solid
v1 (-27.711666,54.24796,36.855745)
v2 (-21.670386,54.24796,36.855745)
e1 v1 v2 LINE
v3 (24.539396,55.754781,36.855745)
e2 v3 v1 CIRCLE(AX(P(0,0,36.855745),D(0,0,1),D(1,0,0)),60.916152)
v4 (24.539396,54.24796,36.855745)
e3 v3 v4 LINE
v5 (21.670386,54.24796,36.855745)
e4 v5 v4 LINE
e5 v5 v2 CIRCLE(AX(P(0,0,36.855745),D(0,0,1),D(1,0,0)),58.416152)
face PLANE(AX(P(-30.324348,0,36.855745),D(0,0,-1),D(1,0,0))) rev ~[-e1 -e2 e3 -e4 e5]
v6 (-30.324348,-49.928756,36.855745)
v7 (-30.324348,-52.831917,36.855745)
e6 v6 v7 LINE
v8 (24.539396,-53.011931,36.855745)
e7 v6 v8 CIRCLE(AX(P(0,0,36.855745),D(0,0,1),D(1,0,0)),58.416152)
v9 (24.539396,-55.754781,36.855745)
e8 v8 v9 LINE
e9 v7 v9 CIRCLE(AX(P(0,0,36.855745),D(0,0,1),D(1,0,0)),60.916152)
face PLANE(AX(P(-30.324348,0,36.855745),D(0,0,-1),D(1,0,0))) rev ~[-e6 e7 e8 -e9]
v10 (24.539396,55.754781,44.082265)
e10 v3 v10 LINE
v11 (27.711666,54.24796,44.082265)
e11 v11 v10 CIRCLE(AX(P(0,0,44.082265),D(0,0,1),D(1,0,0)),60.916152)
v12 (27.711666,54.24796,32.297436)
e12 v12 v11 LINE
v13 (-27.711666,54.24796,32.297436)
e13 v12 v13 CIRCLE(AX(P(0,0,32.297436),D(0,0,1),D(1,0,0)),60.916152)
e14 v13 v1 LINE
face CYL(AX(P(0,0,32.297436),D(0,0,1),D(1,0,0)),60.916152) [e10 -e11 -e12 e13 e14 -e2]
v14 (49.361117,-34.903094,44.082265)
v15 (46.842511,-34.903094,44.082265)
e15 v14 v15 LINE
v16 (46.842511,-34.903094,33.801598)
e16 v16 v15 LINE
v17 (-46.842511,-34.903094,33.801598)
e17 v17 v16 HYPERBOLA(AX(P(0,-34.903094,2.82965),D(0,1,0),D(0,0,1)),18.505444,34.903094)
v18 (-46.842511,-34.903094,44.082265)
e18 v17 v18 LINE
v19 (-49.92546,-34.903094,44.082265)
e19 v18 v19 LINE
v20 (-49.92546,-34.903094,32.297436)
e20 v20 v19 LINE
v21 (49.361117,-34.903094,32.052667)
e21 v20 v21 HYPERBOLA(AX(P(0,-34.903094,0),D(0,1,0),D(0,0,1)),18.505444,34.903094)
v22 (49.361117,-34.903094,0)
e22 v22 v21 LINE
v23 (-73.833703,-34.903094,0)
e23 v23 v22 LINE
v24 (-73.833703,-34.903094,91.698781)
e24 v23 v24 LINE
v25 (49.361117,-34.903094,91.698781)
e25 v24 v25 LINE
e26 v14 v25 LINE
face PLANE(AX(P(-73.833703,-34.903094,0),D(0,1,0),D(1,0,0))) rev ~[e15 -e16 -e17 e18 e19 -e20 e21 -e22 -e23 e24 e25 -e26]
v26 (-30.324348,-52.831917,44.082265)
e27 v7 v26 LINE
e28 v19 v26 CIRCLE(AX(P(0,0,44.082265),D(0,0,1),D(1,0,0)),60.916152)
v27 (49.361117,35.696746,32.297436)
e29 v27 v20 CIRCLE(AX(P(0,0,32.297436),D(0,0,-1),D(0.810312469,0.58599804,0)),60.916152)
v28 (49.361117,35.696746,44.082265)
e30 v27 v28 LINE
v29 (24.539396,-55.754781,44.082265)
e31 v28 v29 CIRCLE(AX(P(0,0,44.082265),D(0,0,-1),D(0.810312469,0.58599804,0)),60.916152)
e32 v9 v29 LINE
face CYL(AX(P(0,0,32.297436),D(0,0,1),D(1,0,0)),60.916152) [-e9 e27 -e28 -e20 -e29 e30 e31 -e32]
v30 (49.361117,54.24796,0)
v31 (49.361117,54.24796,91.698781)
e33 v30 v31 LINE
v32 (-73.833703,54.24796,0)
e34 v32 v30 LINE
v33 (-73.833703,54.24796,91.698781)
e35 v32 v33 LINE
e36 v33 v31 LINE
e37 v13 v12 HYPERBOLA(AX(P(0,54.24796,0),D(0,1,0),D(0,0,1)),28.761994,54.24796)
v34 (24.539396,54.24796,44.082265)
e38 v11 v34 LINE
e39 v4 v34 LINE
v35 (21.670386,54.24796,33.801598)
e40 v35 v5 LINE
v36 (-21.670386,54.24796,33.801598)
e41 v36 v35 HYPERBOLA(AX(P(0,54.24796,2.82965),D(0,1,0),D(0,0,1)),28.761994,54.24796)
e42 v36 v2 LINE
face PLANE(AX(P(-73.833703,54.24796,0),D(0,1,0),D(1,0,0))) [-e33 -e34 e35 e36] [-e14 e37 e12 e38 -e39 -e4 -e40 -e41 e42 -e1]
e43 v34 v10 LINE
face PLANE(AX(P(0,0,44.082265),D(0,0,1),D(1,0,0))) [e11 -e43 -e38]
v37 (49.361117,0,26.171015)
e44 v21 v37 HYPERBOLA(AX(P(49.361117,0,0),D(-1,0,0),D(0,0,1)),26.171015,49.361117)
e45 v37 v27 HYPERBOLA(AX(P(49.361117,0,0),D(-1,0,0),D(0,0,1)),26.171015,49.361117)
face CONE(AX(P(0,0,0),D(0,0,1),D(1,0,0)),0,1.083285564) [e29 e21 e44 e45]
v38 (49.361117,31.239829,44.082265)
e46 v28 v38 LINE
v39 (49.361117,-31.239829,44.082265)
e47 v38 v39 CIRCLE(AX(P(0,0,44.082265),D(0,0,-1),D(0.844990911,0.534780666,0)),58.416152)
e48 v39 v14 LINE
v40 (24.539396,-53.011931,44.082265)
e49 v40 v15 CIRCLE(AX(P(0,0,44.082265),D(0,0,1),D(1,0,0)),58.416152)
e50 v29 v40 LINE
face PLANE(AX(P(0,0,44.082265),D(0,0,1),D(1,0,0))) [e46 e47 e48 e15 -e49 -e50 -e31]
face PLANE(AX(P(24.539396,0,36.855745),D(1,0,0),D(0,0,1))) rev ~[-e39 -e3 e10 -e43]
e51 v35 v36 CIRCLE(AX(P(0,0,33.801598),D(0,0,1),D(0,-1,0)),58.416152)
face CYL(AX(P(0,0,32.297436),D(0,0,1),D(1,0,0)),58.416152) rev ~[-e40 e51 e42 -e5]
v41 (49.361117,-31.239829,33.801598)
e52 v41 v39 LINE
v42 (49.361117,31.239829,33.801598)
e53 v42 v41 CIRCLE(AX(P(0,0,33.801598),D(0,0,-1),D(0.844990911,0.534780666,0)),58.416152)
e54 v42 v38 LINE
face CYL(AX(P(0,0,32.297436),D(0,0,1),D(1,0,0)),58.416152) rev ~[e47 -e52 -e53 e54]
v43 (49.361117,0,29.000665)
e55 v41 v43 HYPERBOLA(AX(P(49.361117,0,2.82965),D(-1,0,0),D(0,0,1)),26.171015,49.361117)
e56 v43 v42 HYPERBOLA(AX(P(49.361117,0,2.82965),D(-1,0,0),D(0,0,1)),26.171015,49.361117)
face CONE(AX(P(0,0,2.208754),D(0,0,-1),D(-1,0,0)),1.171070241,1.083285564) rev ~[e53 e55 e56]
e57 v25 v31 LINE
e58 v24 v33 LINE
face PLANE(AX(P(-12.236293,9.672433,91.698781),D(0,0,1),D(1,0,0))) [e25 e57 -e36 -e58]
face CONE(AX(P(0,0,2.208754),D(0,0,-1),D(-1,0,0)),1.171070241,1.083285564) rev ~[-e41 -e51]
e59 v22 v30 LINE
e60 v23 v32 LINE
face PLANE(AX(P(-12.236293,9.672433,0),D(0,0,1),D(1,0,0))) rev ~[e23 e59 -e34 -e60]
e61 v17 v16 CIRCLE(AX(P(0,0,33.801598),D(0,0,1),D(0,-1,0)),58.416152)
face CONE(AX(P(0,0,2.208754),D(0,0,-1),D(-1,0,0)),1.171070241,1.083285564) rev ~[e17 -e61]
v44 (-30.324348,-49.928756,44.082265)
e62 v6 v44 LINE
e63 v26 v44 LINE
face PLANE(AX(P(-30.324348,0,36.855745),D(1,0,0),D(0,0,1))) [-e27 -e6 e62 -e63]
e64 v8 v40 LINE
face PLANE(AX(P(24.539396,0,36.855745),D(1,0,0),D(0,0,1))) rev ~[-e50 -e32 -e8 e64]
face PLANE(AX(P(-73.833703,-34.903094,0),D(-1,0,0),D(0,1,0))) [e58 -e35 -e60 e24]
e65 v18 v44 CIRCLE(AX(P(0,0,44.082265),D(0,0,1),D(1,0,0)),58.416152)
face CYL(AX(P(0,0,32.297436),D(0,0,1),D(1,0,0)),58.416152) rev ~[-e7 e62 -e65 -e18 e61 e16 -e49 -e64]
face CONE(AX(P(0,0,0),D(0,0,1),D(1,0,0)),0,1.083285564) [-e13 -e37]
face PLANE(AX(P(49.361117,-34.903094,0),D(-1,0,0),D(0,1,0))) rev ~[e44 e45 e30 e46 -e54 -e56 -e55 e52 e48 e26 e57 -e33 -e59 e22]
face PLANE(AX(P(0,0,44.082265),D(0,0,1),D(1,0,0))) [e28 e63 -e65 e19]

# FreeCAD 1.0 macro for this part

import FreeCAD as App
import Part
import Sketcher

V = App.Vector
Q = App.Units.Quantity


def faces_at(feature, points):
    """Names of the faces that lie closest to the given points."""
    faces = feature.Shape.Faces
    near = lambda p: min(range(len(faces)), key=lambda i: faces[i].distToShape(Part.Vertex(*p))[0])
    return sorted({f"Face{near(p) + 1}" for p in points})

doc = App.newDocument("Part")
body = doc.addObject("PartDesign::Body", "Body")

sketch1 = doc.addObject("Sketcher::SketchObject", "Sketch")
body.addObject(sketch1)
sketch1.AttachmentSupport = (doc.XZ_Plane, [""])
sketch1.MapMode = "FlatFace"
sketch1.addGeometry([
    Part.LineSegment(V(0, 44.082265, 0), V(0, 0, 0)),
    Part.LineSegment(V(0, 0, 0), V(60.916152, 32.297436, 0)),
    Part.LineSegment(V(60.916152, 32.297436, 0), V(60.916152, 44.082265, 0)),
    Part.LineSegment(V(60.916152, 44.082265, 0), V(0, 44.082265, 0)),
], False)
sketch1.addConstraint([
    Sketcher.Constraint("Coincident", 0, 2, 1, 1),
    Sketcher.Constraint("Coincident", 1, 2, 2, 1),
    Sketcher.Constraint("Coincident", 2, 2, 3, 1),
    Sketcher.Constraint("Coincident", 3, 2, 0, 1),
    Sketcher.Constraint("Vertical", 0),
    Sketcher.Constraint("Vertical", 2),
    Sketcher.Constraint("Horizontal", 3),
    Sketcher.Constraint("Coincident", 0, 2, -1, 1),
    Sketcher.Constraint("DistanceX", 3, 2, 3, 1, Q("60.916152 mm")),
    Sketcher.Constraint("DistanceY", 2, 1, 2, 2, Q("11.784829 mm")),
    Sketcher.Constraint("DistanceY", 0, 2, 0, 1, Q("44.082265 mm")),
])
revolution = doc.addObject("PartDesign::Revolution", "Revolution")
body.addObject(revolution)
revolution.Profile = sketch1
revolution.ReferenceAxis = (sketch1, ["V_Axis"])
revolution.Angle = 360
doc.recompute()

thickness = doc.addObject("PartDesign::Thickness", "Thickness")
body.addObject(thickness)
thickness.Base = (revolution, faces_at(revolution, [(0, 0, 44.082)]))
thickness.Value = 2.5
thickness.Reversed = True
thickness.Join = "Arc"

sketch2 = doc.addObject("Sketcher::SketchObject", "Sketch001")
body.addObject(sketch2)
sketch2.AttachmentSupport = (doc.XZ_Plane, [""])
sketch2.MapMode = "FlatFace"
sketch2.addGeometry([
    Part.LineSegment(V(-30.324348, 53.464163, 0), V(-30.324348, 36.855745, 0)),
    Part.LineSegment(V(-30.324348, 36.855745, 0), V(24.539396, 36.855745, 0)),
    Part.LineSegment(V(24.539396, 36.855745, 0), V(24.539396, 53.464163, 0)),
    Part.LineSegment(V(24.539396, 53.464163, 0), V(-30.324348, 53.464163, 0)),
], False)
sketch2.addConstraint([
    Sketcher.Constraint("Coincident", 0, 2, 1, 1),
    Sketcher.Constraint("Coincident", 1, 2, 2, 1),
    Sketcher.Constraint("Coincident", 2, 2, 3, 1),
    Sketcher.Constraint("Coincident", 3, 2, 0, 1),
    Sketcher.Constraint("Vertical", 0),
    Sketcher.Constraint("Horizontal", 1),
    Sketcher.Constraint("Vertical", 2),
    Sketcher.Constraint("Horizontal", 3),
    Sketcher.Constraint("DistanceX", 1, 1, 1, 2, Q("54.863745 mm")),
    Sketcher.Constraint("DistanceY", 0, 2, 0, 1, Q("16.608417 mm")),
    Sketcher.Constraint("DistanceX", 0, 2, -1, 1, Q("30.324348 mm")),
    Sketcher.Constraint("DistanceY", -1, 1, 0, 2, Q("36.855745 mm")),
])
pocket1 = doc.addObject("PartDesign::Pocket", "Pocket")
body.addObject(pocket1)
pocket1.Profile = sketch2
pocket1.Length = 209
pocket1.Midplane = True

sketch3 = doc.addObject("Sketcher::SketchObject", "Sketch002")
body.addObject(sketch3)
sketch3.AttachmentSupport = (doc.YZ_Plane, [""])
sketch3.MapMode = "FlatFace"
sketch3.addGeometry([
    Part.LineSegment(V(-41.33442, 10.356932, 0), V(-41.33442, -13.902548, 0)),
    Part.LineSegment(V(-41.33442, -13.902548, 0), V(35.73608, -13.902548, 0)),
    Part.LineSegment(V(35.73608, -13.902548, 0), V(35.73608, 10.356932, 0)),
    Part.LineSegment(V(35.73608, 10.356932, 0), V(-41.33442, 10.356932, 0)),
], False)
sketch3.addConstraint([
    Sketcher.Constraint("Coincident", 0, 2, 1, 1),
    Sketcher.Constraint("Coincident", 1, 2, 2, 1),
    Sketcher.Constraint("Coincident", 2, 2, 3, 1),
    Sketcher.Constraint("Coincident", 3, 2, 0, 1),
    Sketcher.Constraint("Vertical", 0),
    Sketcher.Constraint("Horizontal", 1),
    Sketcher.Constraint("Vertical", 2),
    Sketcher.Constraint("Horizontal", 3),
    Sketcher.Constraint("DistanceX", 1, 1, 1, 2, Q("77.0705 mm")),
    Sketcher.Constraint("DistanceY", 0, 2, 0, 1, Q("24.25948 mm")),
    Sketcher.Constraint("DistanceX", 0, 2, -1, 1, Q("41.33442 mm")),
    Sketcher.Constraint("DistanceY", 0, 2, -1, 1, Q("13.902548 mm")),
])
pocket2 = doc.addObject("PartDesign::Pocket", "Pocket001")
body.addObject(pocket2)
pocket2.Profile = sketch3
pocket2.Length = 180.8
pocket2.Midplane = True

sketch4 = doc.addObject("Sketcher::SketchObject", "Sketch003")
body.addObject(sketch4)
sketch4.AttachmentSupport = (doc.XY_Plane, [""])
sketch4.MapMode = "FlatFace"
sketch4.addGeometry([
    Part.LineSegment(V(-73.833703, 54.24796, 0), V(-73.833703, -34.903094, 0)),
    Part.LineSegment(V(-73.833703, -34.903094, 0), V(49.361117, -34.903094, 0)),
    Part.LineSegment(V(49.361117, -34.903094, 0), V(49.361117, 54.24796, 0)),
    Part.LineSegment(V(49.361117, 54.24796, 0), V(-73.833703, 54.24796, 0)),
], False)
sketch4.addConstraint([
    Sketcher.Constraint("Coincident", 0, 2, 1, 1),
    Sketcher.Constraint("Coincident", 1, 2, 2, 1),
    Sketcher.Constraint("Coincident", 2, 2, 3, 1),
    Sketcher.Constraint("Coincident", 3, 2, 0, 1),
    Sketcher.Constraint("Vertical", 0),
    Sketcher.Constraint("Horizontal", 1),
    Sketcher.Constraint("Vertical", 2),
    Sketcher.Constraint("Horizontal", 3),
    Sketcher.Constraint("DistanceX", 1, 1, 1, 2, Q("123.194821 mm")),
    Sketcher.Constraint("DistanceY", 0, 2, 0, 1, Q("89.151054 mm")),
    Sketcher.Constraint("DistanceY", -1, 1, 2, 2, Q("54.24796 mm")),
    Sketcher.Constraint("DistanceX", 0, 2, -1, 1, Q("73.833703 mm")),
])
pad1 = doc.addObject("PartDesign::Pad", "Pad")
body.addObject(pad1)
pad1.Profile = sketch4
pad1.Length = 91.698781

doc.recompute()
